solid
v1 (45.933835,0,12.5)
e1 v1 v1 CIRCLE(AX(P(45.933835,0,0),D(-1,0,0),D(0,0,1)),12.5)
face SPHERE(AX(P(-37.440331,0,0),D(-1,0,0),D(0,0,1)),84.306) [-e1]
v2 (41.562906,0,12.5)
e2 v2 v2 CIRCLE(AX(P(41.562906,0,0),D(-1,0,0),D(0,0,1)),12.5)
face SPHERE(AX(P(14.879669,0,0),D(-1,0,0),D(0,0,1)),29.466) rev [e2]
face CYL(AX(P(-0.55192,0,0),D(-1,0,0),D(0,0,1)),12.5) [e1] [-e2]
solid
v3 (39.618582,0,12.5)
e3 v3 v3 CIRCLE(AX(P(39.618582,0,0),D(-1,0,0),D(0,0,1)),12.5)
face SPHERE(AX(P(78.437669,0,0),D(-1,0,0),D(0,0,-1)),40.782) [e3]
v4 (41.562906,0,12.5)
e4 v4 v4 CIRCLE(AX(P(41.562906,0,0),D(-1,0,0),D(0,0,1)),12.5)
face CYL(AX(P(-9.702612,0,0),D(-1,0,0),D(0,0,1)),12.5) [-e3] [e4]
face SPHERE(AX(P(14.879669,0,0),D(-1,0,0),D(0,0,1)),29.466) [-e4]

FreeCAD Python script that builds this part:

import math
import FreeCAD as App
import Part
import Sketcher

V = App.Vector
Q = App.Units.Quantity

doc = App.newDocument("Part")
body = doc.addObject("PartDesign::Body", "Body")

# Sketch on XZ plane
sketch1 = body.newObject("Sketcher::SketchObject", "Sketch")
sketch1.AttachmentSupport = (doc.getObject("XZ_Plane"), [""])
sketch1.MapMode = "FlatFace"
sketch1.addGeometry([
    Part.ArcOfCircle(Part.Circle(V(78.4, 0, 0), V(0, 0, 1), 40.8), math.radians(180), math.radians(197.85)),
    Part.LineSegment(V(37.7, 0, 0), V(44.3, 0, 0)),
    Part.ArcOfCircle(Part.Circle(V(14.9, 0, 0), V(0, 0, 1), 29.5), math.radians(-25), math.radians(0)),
    Part.LineSegment(V(41.6, -12.5, 0), V(39.6, -12.5, 0)),
], False)
sketch1.addConstraint([
    Sketcher.Constraint("Coincident", 0, 1, 1, 1),
    Sketcher.Constraint("Coincident", 1, 2, 2, 2),
    Sketcher.Constraint("Coincident", 2, 1, 3, 1),
    Sketcher.Constraint("Coincident", 3, 2, 0, 2),
    Sketcher.Constraint("Horizontal", 1),
    Sketcher.Constraint("Horizontal", 3),
    Sketcher.Constraint("PointOnObject", 0, 3, -1),
    Sketcher.Constraint("PointOnObject", 2, 3, -1),
    Sketcher.Constraint("PointOnObject", 0, 1, -1),
    Sketcher.Constraint("Radius", 0, Q("40.782 mm")),
    Sketcher.Constraint("Radius", 2, Q("29.466 mm")),
    Sketcher.Constraint("DistanceX", 1, 1, 1, 2, Q("6.69 mm")),
    Sketcher.Constraint("DistanceY", 2, 1, -1, 1, Q("12.5 mm")),
    Sketcher.Constraint("DistanceX", -1, 1, 0, 3, Q("78.437669 mm")),
])
revolution = body.newObject("PartDesign::Revolution", "Revolution")
revolution.Profile = sketch1
revolution.ReferenceAxis = (sketch1, ["H_Axis"])
revolution.Angle = 360
body2 = doc.addObject("PartDesign::Body", "Body001")

# Sketch on XZ plane
sketch2 = body2.newObject("Sketcher::SketchObject", "Sketch001")
sketch2.AttachmentSupport = (doc.getObject("XZ_Plane001"), [""])
sketch2.MapMode = "FlatFace"
sketch2.addGeometry([
    Part.LineSegment(V(45.9, -12.5, 0), V(41.6, -12.5, 0)),
    Part.ArcOfCircle(Part.Circle(V(14.9, 0, 0), V(0, 0, 1), 29.5), math.radians(-25), math.radians(0)),
    Part.LineSegment(V(44.3, 0, 0), V(46.9, 0, 0)),
    Part.ArcOfCircle(Part.Circle(V(-37.4, 0, 0), V(0, 0, 1), 84.3), math.radians(-8.53), math.radians(0)),
], False)
sketch2.addConstraint([
    Sketcher.Constraint("Coincident", 0, 2, 1, 1),
    Sketcher.Constraint("Coincident", 1, 2, 2, 1),
    Sketcher.Constraint("Coincident", 2, 2, 3, 2),
    Sketcher.Constraint("Coincident", 3, 1, 0, 1),
    Sketcher.Constraint("Horizontal", 0),
    Sketcher.Constraint("Horizontal", 2),
    Sketcher.Constraint("PointOnObject", 1, 3, -1),
    Sketcher.Constraint("PointOnObject", 3, 3, -1),
    Sketcher.Constraint("PointOnObject", 1, 2, -1),
    Sketcher.Constraint("Radius", 1, Q("29.466 mm")),
    Sketcher.Constraint("Radius", 3, Q("84.306 mm")),
    Sketcher.Constraint("DistanceX", 2, 1, 2, 2, Q("2.52 mm")),
    Sketcher.Constraint("DistanceY", 0, 2, -1, 1, Q("12.5 mm")),
    Sketcher.Constraint("DistanceX", -1, 1, 1, 3, Q("14.879669 mm")),
])
revolution2 = body2.newObject("PartDesign::Revolution", "Revolution001")
revolution2.Profile = sketch2
revolution2.ReferenceAxis = (sketch2, ["H_Axis"])
revolution2.Angle = 360

doc.recompute()
